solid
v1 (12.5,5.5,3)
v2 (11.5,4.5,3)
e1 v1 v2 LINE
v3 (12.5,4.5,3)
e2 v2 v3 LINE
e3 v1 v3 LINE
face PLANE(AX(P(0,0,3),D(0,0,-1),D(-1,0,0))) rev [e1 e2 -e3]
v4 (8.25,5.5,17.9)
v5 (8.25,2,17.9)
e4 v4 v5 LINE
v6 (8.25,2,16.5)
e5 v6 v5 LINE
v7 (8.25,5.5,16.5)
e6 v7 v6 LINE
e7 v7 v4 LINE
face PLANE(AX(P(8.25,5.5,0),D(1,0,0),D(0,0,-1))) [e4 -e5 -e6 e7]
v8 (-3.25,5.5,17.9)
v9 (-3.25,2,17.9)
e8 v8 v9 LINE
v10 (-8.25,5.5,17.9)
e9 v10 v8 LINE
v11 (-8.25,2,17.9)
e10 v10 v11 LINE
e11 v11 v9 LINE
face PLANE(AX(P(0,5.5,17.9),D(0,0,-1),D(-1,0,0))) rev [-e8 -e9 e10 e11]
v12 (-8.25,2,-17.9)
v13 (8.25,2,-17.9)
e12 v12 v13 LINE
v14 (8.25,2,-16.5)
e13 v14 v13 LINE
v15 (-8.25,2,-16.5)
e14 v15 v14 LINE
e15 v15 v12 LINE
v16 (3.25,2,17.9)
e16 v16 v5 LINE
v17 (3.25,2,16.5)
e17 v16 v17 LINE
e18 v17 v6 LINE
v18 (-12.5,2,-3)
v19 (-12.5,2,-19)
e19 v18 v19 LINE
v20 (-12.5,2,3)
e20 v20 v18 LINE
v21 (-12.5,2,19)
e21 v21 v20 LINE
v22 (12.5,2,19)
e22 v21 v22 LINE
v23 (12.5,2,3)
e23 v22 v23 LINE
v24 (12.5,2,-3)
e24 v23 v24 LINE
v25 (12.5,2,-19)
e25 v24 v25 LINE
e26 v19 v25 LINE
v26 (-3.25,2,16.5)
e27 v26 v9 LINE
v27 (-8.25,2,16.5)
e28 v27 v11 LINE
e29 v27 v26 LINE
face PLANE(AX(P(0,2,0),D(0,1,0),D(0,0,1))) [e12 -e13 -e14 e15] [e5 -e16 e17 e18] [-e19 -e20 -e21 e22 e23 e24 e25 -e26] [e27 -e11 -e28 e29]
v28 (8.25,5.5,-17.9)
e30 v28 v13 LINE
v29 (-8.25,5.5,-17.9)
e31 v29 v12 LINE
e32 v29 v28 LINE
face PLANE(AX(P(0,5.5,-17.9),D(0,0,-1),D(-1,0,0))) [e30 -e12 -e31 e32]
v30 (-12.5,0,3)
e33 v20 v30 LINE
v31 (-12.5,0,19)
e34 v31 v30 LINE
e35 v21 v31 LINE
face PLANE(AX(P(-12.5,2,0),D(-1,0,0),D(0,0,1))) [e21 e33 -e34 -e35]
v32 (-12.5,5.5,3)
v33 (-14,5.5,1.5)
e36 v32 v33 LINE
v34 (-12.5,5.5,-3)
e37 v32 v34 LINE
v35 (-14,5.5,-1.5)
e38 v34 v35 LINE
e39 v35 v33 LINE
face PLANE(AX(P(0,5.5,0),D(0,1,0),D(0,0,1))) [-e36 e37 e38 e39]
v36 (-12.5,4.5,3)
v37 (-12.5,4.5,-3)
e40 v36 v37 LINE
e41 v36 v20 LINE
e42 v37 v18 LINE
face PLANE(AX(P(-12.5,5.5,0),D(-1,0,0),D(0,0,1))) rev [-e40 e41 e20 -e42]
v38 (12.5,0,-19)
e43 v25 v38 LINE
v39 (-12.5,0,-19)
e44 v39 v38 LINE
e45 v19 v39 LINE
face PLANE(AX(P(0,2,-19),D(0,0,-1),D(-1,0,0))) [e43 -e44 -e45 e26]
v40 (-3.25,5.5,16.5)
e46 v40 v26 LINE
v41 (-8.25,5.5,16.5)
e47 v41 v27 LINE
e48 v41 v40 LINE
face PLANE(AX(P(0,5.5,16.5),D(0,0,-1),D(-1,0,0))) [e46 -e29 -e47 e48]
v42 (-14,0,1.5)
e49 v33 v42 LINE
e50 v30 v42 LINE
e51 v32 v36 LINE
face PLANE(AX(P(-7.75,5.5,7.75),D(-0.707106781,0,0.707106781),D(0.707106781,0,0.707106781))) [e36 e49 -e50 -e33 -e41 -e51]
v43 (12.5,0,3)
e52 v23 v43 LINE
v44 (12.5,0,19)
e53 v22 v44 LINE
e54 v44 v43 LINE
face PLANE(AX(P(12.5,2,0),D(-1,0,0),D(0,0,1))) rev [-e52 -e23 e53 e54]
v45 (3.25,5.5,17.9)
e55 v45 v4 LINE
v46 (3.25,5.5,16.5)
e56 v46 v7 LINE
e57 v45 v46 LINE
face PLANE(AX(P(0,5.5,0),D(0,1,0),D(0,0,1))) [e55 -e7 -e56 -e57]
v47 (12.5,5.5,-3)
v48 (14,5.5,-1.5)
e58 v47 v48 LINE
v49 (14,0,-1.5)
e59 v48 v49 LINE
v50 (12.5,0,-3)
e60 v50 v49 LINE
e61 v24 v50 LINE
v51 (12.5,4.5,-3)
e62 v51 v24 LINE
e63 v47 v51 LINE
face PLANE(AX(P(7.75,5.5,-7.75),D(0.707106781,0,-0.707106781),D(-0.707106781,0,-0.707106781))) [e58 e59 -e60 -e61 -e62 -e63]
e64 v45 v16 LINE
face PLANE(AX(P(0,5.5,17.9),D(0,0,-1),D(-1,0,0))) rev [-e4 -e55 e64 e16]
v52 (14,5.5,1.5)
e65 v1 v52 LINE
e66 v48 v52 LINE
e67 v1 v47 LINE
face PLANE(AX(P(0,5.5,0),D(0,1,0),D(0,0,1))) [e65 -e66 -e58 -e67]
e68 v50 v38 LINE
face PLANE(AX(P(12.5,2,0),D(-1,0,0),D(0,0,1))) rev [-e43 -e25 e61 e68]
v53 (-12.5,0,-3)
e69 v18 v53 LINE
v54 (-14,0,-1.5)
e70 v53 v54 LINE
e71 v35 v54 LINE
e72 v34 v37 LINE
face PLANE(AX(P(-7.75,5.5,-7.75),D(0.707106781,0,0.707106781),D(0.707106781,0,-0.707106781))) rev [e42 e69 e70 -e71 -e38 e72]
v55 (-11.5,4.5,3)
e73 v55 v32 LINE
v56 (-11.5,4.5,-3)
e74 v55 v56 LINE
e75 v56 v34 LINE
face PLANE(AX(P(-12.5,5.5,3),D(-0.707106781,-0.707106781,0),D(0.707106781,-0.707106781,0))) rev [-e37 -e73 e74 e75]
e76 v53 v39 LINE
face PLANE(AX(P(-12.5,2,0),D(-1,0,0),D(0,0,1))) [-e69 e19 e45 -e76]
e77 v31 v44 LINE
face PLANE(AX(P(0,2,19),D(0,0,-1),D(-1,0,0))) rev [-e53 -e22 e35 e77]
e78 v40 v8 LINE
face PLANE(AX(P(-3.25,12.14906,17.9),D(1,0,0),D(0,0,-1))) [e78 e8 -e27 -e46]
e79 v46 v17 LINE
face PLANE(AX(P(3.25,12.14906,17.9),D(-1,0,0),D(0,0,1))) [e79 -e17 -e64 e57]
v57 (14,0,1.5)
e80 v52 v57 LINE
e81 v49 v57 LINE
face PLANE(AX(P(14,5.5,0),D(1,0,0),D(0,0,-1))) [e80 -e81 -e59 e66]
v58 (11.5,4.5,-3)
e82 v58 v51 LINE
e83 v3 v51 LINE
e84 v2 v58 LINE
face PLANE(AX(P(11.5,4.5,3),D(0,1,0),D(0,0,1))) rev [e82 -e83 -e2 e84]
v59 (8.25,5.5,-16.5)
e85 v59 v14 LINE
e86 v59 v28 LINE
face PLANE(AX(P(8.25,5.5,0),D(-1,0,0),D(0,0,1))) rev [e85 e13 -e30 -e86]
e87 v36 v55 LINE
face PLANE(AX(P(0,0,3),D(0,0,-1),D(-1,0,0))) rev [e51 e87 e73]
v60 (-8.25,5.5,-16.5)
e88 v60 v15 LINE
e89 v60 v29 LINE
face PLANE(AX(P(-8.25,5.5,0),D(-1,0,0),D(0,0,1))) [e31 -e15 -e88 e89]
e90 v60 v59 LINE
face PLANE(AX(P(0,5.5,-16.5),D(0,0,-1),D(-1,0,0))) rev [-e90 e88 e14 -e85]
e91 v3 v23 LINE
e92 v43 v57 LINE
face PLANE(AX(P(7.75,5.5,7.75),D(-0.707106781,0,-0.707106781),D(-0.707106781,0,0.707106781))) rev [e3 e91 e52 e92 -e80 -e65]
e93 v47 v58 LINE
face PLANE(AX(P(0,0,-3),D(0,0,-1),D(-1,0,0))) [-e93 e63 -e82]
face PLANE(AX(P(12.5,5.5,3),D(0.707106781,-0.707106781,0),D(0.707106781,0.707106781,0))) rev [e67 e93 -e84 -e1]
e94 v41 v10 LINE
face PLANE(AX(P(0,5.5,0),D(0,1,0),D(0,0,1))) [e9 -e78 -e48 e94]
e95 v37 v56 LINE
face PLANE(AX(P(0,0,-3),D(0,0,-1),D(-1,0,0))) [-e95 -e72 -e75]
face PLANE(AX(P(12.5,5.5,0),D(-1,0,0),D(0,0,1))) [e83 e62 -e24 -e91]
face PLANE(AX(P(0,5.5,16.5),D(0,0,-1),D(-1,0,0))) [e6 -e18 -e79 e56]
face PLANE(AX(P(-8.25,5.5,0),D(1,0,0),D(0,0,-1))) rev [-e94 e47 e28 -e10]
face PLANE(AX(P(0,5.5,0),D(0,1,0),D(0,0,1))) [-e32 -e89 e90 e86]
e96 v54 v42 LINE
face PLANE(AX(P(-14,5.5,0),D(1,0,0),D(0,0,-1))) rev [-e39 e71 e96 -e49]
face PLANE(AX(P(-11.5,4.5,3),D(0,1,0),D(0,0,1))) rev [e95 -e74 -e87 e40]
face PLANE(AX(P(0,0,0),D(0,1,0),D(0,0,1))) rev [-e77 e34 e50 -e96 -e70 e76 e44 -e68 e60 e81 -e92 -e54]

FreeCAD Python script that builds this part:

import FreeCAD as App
import Part
import Sketcher

V = App.Vector
Q = App.Units.Quantity


def add_polygon(sketch, points):
    """Adds a closed chain of lines whose ends are joined by coincident constraints."""
    first, n = sketch.GeometryCount, len(points)
    for a, b in zip(points, points[1:] + points[:1]):
        sketch.addGeometry(Part.LineSegment(App.Vector(*a, 0), App.Vector(*b, 0)), False)
    for i in range(n):
        sketch.addConstraint(Sketcher.Constraint("Coincident", first + i, 2, first + (i + 1) % n, 1))

doc = App.newDocument("Part")
params = doc.addObject("Spreadsheet::Sheet", "Params")
for row, (alias, value) in enumerate([
    ("sketch1_width", "25 mm"),
    ("sketch1_height", "38 mm"),
    ("sketch1_width2", "16.5 mm"),
    ("sketch1_height2", "1.4 mm"),
    ("pad1_length", "2 mm"),
    ("sketch2_height", "6 mm"),
    ("sketch2_height2", "3 mm"),
    ("sketch2_width", "16.5 mm"),
    ("sketch2_height3", "1.4 mm"),
    ("pad2_length", "5.5 mm"),
    ("sketch3_width", "1 mm"),
    ("pad3_length", "3 mm"),
    ("pad3_length2", "3 mm"),
    ("sketch4_width", "6.5 mm"),
    ("sketch4_height", "1.4 mm"),
    ("pocket1_length", "3.5 mm"),
], start=1):
    params.set(f"A{row}", alias)
    params.set(f"B{row}", "=" + value)
    params.setAlias(f"B{row}", alias)

body = doc.addObject("PartDesign::Body", "Body")

# Sketch on XZ plane
sketch1 = body.newObject("Sketcher::SketchObject", "Sketch")
sketch1.AttachmentSupport = (doc.getObject("XZ_Plane"), [""])
sketch1.MapMode = "FlatFace"
add_polygon(sketch1, [(-12.5, -19), (-12.5, 19), (12.5, 19), (12.5, -19)])  # lines 0-3
add_polygon(sketch1, [(8.2, 17.9), (-8.2, 17.9), (-8.2, 16.5), (8.2, 16.5)])  # lines 4-7
add_polygon(sketch1, [(8.2, -16.5), (-8.2, -16.5), (-8.2, -17.9), (8.2, -17.9)])  # lines 8-11
sketch1.addConstraint(Sketcher.Constraint("Vertical", 0))
sketch1.addConstraint(Sketcher.Constraint("Horizontal", 1))
sketch1.addConstraint(Sketcher.Constraint("Vertical", 2))
sketch1.addConstraint(Sketcher.Constraint("Horizontal", 3))
sketch1.addConstraint(Sketcher.Constraint("Horizontal", 4))
sketch1.addConstraint(Sketcher.Constraint("Vertical", 5))
sketch1.addConstraint(Sketcher.Constraint("Horizontal", 6))
sketch1.addConstraint(Sketcher.Constraint("Vertical", 7))
sketch1.addConstraint(Sketcher.Constraint("Horizontal", 8))
sketch1.addConstraint(Sketcher.Constraint("Vertical", 9))
sketch1.addConstraint(Sketcher.Constraint("Horizontal", 10))
sketch1.addConstraint(Sketcher.Constraint("Vertical", 11))
sketch1.addConstraint(Sketcher.Constraint("Symmetric", 0, 2, 2, 2, -1, 1))
sketch1.addConstraint(Sketcher.Constraint("Symmetric", 6, 2, 8, 2, -1, 1))
sketch1.addConstraint(Sketcher.Constraint("Symmetric", 4, 2, 10, 2, -1, 1))
sketch1.addConstraint(Sketcher.Constraint("Vertical", 5, 2, 8, 2))
sketch1.addConstraint(Sketcher.Constraint("DistanceX", 1, 1, 1, 2, Q("25 mm")))
sketch1.addConstraint(Sketcher.Constraint("DistanceY", 0, 1, 0, 2, Q("38 mm")))
sketch1.addConstraint(Sketcher.Constraint("DistanceX", 4, 2, 4, 1, Q("16.5 mm")))
sketch1.addConstraint(Sketcher.Constraint("DistanceY", 5, 2, 5, 1, Q("1.4 mm")))
sketch1.addConstraint(Sketcher.Constraint("DistanceY", 8, 2, 5, 2, Q("33 mm")))
sketch1.setExpression("Constraints[28]", "Params.sketch1_width")
sketch1.setExpression("Constraints[29]", "Params.sketch1_height")
sketch1.setExpression("Constraints[30]", "Params.sketch1_width2")
sketch1.setExpression("Constraints[31]", "Params.sketch1_height2")
pad1 = body.newObject("PartDesign::Pad", "Pad")
pad1.Profile = sketch1
pad1.setExpression("Length", "Params.pad1_length")
pad1.Reversed = True

# Sketch on XZ plane
sketch2 = body.newObject("Sketcher::SketchObject", "Sketch001")
sketch2.AttachmentSupport = (doc.getObject("XZ_Plane"), [""])
sketch2.MapMode = "FlatFace"
add_polygon(sketch2, [(-14, 1.5), (-12.5, 3), (-12.5, -3), (-14, -1.5)])  # lines 0-3
add_polygon(sketch2, [(12.5, -3), (12.5, 3), (14, 1.5), (14, -1.5)])  # lines 4-7
add_polygon(sketch2, [(-8.2, -17.9), (-8.2, -16.5), (8.2, -16.5), (8.2, -17.9)])  # lines 8-11
add_polygon(sketch2, [(-8.2, 16.5), (-8.2, 17.9), (8.2, 17.9), (8.2, 16.5)])  # lines 12-15
sketch2.addConstraint(Sketcher.Constraint("Vertical", 1))
sketch2.addConstraint(Sketcher.Constraint("Vertical", 3))
sketch2.addConstraint(Sketcher.Constraint("Vertical", 4))
sketch2.addConstraint(Sketcher.Constraint("Vertical", 6))
sketch2.addConstraint(Sketcher.Constraint("Vertical", 8))
sketch2.addConstraint(Sketcher.Constraint("Horizontal", 9))
sketch2.addConstraint(Sketcher.Constraint("Vertical", 10))
sketch2.addConstraint(Sketcher.Constraint("Horizontal", 11))
sketch2.addConstraint(Sketcher.Constraint("Vertical", 12))
sketch2.addConstraint(Sketcher.Constraint("Horizontal", 13))
sketch2.addConstraint(Sketcher.Constraint("Vertical", 14))
sketch2.addConstraint(Sketcher.Constraint("Horizontal", 15))
sketch2.addConstraint(Sketcher.Constraint("Symmetric", 1, 2, 4, 2, -1, 1))
sketch2.addConstraint(Sketcher.Constraint("Symmetric", 2, 2, 5, 2, -1, 1))
sketch2.addConstraint(Sketcher.Constraint("Symmetric", 10, 2, 12, 2, -1, 1))
sketch2.addConstraint(Sketcher.Constraint("Symmetric", 8, 2, 14, 2, -1, 1))
sketch2.addConstraint(Sketcher.Constraint("Perpendicular", 0, 2))
sketch2.addConstraint(Sketcher.Constraint("Perpendicular", 5, 7))
sketch2.addConstraint(Sketcher.Constraint("Horizontal", 0, 2, 4, 2))
sketch2.addConstraint(Sketcher.Constraint("Horizontal", 3, 2, 5, 2))
sketch2.addConstraint(Sketcher.Constraint("Horizontal", 2, 2, 6, 2))
sketch2.addConstraint(Sketcher.Constraint("Vertical", 11, 2, 12, 2))
sketch2.addConstraint(Sketcher.Constraint("DistanceY", 1, 2, 1, 1, Q("6 mm")))
sketch2.addConstraint(Sketcher.Constraint("DistanceY", 3, 1, 3, 2, Q("3 mm")))
sketch2.addConstraint(Sketcher.Constraint("DistanceX", 9, 1, 9, 2, Q("16.5 mm")))
sketch2.addConstraint(Sketcher.Constraint("DistanceY", 8, 1, 8, 2, Q("1.4 mm")))
sketch2.addConstraint(Sketcher.Constraint("DistanceX", 2, 2, -1, 1, Q("14 mm")))
sketch2.addConstraint(Sketcher.Constraint("DistanceY", 8, 2, 2, 2, Q("15 mm")))
sketch2.setExpression("Constraints[38]", "Params.sketch2_height")
sketch2.setExpression("Constraints[39]", "Params.sketch2_height2")
sketch2.setExpression("Constraints[40]", "Params.sketch2_width")
sketch2.setExpression("Constraints[41]", "Params.sketch2_height3")
pad2 = body.newObject("PartDesign::Pad", "Pad001")
pad2.Profile = sketch2
pad2.setExpression("Length", "Params.pad2_length")
pad2.Reversed = True

# Sketch on XY plane
sketch3 = body.newObject("Sketcher::SketchObject", "Sketch002")
sketch3.AttachmentSupport = (doc.getObject("XY_Plane"), [""])
sketch3.MapMode = "FlatFace"
add_polygon(sketch3, [(12.5, 5.5), (11.5, 4.5), (12.5, 4.5)])  # lines 0-2
add_polygon(sketch3, [(-12.5, 4.5), (-11.5, 4.5), (-12.5, 5.5)])  # lines 3-5
sketch3.addConstraint(Sketcher.Constraint("Horizontal", 1))
sketch3.addConstraint(Sketcher.Constraint("Vertical", 2))
sketch3.addConstraint(Sketcher.Constraint("Horizontal", 3))
sketch3.addConstraint(Sketcher.Constraint("Vertical", 5))
sketch3.addConstraint(Sketcher.Constraint("Symmetric", 0, 2, 3, 2, -2))
sketch3.addConstraint(Sketcher.Constraint("Symmetric", 2, 2, 4, 2, -2))
sketch3.addConstraint(Sketcher.Constraint("Perpendicular", 0, 4))
sketch3.addConstraint(Sketcher.Constraint("DistanceX", 1, 1, 1, 2, Q("1 mm")))
sketch3.addConstraint(Sketcher.Constraint("DistanceX", 3, 2, 0, 2, Q("23 mm")))
sketch3.addConstraint(Sketcher.Constraint("DistanceY", -1, 1, 0, 2, Q("4.5 mm")))
sketch3.setExpression("Constraints[13]", "Params.sketch3_width")
pad3 = body.newObject("PartDesign::Pad", "Pad002")
pad3.Profile = sketch3
pad3.Type = "TwoLengths"
pad3.setExpression("Length", "Params.pad3_length")
pad3.setExpression("Length2", "Params.pad3_length2")

# Sketch on XZ plane
sketch4 = body.newObject("Sketcher::SketchObject", "Sketch003")
sketch4.AttachmentSupport = (doc.getObject("XZ_Plane"), [""])
sketch4.MapMode = "FlatFace"
sketch4.AttachmentOffset = App.Placement(V(0, 0, -2), App.Rotation())
add_polygon(sketch4, [(-3.2, 16.5), (-3.2, 17.9), (3.2, 17.9), (3.2, 16.5)])  # lines 0-3
sketch4.addConstraint(Sketcher.Constraint("Vertical", 0))
sketch4.addConstraint(Sketcher.Constraint("Horizontal", 1))
sketch4.addConstraint(Sketcher.Constraint("Vertical", 2))
sketch4.addConstraint(Sketcher.Constraint("Horizontal", 3))
sketch4.addConstraint(Sketcher.Constraint("DistanceX", 1, 1, 1, 2, Q("6.5 mm")))
sketch4.addConstraint(Sketcher.Constraint("DistanceY", 0, 1, 0, 2, Q("1.4 mm")))
sketch4.addConstraint(Sketcher.Constraint("DistanceY", -1, 1, 0, 2, Q("17.9 mm")))
sketch4.addConstraint(Sketcher.Constraint("DistanceX", 0, 2, -1, 1, Q("3.25 mm")))
sketch4.setExpression("Constraints[8]", "Params.sketch4_width")
sketch4.setExpression("Constraints[9]", "Params.sketch4_height")
pocket1 = body.newObject("PartDesign::Pocket", "Pocket")
pocket1.Profile = sketch4
pocket1.setExpression("Length", "Params.pocket1_length")

doc.recompute()
